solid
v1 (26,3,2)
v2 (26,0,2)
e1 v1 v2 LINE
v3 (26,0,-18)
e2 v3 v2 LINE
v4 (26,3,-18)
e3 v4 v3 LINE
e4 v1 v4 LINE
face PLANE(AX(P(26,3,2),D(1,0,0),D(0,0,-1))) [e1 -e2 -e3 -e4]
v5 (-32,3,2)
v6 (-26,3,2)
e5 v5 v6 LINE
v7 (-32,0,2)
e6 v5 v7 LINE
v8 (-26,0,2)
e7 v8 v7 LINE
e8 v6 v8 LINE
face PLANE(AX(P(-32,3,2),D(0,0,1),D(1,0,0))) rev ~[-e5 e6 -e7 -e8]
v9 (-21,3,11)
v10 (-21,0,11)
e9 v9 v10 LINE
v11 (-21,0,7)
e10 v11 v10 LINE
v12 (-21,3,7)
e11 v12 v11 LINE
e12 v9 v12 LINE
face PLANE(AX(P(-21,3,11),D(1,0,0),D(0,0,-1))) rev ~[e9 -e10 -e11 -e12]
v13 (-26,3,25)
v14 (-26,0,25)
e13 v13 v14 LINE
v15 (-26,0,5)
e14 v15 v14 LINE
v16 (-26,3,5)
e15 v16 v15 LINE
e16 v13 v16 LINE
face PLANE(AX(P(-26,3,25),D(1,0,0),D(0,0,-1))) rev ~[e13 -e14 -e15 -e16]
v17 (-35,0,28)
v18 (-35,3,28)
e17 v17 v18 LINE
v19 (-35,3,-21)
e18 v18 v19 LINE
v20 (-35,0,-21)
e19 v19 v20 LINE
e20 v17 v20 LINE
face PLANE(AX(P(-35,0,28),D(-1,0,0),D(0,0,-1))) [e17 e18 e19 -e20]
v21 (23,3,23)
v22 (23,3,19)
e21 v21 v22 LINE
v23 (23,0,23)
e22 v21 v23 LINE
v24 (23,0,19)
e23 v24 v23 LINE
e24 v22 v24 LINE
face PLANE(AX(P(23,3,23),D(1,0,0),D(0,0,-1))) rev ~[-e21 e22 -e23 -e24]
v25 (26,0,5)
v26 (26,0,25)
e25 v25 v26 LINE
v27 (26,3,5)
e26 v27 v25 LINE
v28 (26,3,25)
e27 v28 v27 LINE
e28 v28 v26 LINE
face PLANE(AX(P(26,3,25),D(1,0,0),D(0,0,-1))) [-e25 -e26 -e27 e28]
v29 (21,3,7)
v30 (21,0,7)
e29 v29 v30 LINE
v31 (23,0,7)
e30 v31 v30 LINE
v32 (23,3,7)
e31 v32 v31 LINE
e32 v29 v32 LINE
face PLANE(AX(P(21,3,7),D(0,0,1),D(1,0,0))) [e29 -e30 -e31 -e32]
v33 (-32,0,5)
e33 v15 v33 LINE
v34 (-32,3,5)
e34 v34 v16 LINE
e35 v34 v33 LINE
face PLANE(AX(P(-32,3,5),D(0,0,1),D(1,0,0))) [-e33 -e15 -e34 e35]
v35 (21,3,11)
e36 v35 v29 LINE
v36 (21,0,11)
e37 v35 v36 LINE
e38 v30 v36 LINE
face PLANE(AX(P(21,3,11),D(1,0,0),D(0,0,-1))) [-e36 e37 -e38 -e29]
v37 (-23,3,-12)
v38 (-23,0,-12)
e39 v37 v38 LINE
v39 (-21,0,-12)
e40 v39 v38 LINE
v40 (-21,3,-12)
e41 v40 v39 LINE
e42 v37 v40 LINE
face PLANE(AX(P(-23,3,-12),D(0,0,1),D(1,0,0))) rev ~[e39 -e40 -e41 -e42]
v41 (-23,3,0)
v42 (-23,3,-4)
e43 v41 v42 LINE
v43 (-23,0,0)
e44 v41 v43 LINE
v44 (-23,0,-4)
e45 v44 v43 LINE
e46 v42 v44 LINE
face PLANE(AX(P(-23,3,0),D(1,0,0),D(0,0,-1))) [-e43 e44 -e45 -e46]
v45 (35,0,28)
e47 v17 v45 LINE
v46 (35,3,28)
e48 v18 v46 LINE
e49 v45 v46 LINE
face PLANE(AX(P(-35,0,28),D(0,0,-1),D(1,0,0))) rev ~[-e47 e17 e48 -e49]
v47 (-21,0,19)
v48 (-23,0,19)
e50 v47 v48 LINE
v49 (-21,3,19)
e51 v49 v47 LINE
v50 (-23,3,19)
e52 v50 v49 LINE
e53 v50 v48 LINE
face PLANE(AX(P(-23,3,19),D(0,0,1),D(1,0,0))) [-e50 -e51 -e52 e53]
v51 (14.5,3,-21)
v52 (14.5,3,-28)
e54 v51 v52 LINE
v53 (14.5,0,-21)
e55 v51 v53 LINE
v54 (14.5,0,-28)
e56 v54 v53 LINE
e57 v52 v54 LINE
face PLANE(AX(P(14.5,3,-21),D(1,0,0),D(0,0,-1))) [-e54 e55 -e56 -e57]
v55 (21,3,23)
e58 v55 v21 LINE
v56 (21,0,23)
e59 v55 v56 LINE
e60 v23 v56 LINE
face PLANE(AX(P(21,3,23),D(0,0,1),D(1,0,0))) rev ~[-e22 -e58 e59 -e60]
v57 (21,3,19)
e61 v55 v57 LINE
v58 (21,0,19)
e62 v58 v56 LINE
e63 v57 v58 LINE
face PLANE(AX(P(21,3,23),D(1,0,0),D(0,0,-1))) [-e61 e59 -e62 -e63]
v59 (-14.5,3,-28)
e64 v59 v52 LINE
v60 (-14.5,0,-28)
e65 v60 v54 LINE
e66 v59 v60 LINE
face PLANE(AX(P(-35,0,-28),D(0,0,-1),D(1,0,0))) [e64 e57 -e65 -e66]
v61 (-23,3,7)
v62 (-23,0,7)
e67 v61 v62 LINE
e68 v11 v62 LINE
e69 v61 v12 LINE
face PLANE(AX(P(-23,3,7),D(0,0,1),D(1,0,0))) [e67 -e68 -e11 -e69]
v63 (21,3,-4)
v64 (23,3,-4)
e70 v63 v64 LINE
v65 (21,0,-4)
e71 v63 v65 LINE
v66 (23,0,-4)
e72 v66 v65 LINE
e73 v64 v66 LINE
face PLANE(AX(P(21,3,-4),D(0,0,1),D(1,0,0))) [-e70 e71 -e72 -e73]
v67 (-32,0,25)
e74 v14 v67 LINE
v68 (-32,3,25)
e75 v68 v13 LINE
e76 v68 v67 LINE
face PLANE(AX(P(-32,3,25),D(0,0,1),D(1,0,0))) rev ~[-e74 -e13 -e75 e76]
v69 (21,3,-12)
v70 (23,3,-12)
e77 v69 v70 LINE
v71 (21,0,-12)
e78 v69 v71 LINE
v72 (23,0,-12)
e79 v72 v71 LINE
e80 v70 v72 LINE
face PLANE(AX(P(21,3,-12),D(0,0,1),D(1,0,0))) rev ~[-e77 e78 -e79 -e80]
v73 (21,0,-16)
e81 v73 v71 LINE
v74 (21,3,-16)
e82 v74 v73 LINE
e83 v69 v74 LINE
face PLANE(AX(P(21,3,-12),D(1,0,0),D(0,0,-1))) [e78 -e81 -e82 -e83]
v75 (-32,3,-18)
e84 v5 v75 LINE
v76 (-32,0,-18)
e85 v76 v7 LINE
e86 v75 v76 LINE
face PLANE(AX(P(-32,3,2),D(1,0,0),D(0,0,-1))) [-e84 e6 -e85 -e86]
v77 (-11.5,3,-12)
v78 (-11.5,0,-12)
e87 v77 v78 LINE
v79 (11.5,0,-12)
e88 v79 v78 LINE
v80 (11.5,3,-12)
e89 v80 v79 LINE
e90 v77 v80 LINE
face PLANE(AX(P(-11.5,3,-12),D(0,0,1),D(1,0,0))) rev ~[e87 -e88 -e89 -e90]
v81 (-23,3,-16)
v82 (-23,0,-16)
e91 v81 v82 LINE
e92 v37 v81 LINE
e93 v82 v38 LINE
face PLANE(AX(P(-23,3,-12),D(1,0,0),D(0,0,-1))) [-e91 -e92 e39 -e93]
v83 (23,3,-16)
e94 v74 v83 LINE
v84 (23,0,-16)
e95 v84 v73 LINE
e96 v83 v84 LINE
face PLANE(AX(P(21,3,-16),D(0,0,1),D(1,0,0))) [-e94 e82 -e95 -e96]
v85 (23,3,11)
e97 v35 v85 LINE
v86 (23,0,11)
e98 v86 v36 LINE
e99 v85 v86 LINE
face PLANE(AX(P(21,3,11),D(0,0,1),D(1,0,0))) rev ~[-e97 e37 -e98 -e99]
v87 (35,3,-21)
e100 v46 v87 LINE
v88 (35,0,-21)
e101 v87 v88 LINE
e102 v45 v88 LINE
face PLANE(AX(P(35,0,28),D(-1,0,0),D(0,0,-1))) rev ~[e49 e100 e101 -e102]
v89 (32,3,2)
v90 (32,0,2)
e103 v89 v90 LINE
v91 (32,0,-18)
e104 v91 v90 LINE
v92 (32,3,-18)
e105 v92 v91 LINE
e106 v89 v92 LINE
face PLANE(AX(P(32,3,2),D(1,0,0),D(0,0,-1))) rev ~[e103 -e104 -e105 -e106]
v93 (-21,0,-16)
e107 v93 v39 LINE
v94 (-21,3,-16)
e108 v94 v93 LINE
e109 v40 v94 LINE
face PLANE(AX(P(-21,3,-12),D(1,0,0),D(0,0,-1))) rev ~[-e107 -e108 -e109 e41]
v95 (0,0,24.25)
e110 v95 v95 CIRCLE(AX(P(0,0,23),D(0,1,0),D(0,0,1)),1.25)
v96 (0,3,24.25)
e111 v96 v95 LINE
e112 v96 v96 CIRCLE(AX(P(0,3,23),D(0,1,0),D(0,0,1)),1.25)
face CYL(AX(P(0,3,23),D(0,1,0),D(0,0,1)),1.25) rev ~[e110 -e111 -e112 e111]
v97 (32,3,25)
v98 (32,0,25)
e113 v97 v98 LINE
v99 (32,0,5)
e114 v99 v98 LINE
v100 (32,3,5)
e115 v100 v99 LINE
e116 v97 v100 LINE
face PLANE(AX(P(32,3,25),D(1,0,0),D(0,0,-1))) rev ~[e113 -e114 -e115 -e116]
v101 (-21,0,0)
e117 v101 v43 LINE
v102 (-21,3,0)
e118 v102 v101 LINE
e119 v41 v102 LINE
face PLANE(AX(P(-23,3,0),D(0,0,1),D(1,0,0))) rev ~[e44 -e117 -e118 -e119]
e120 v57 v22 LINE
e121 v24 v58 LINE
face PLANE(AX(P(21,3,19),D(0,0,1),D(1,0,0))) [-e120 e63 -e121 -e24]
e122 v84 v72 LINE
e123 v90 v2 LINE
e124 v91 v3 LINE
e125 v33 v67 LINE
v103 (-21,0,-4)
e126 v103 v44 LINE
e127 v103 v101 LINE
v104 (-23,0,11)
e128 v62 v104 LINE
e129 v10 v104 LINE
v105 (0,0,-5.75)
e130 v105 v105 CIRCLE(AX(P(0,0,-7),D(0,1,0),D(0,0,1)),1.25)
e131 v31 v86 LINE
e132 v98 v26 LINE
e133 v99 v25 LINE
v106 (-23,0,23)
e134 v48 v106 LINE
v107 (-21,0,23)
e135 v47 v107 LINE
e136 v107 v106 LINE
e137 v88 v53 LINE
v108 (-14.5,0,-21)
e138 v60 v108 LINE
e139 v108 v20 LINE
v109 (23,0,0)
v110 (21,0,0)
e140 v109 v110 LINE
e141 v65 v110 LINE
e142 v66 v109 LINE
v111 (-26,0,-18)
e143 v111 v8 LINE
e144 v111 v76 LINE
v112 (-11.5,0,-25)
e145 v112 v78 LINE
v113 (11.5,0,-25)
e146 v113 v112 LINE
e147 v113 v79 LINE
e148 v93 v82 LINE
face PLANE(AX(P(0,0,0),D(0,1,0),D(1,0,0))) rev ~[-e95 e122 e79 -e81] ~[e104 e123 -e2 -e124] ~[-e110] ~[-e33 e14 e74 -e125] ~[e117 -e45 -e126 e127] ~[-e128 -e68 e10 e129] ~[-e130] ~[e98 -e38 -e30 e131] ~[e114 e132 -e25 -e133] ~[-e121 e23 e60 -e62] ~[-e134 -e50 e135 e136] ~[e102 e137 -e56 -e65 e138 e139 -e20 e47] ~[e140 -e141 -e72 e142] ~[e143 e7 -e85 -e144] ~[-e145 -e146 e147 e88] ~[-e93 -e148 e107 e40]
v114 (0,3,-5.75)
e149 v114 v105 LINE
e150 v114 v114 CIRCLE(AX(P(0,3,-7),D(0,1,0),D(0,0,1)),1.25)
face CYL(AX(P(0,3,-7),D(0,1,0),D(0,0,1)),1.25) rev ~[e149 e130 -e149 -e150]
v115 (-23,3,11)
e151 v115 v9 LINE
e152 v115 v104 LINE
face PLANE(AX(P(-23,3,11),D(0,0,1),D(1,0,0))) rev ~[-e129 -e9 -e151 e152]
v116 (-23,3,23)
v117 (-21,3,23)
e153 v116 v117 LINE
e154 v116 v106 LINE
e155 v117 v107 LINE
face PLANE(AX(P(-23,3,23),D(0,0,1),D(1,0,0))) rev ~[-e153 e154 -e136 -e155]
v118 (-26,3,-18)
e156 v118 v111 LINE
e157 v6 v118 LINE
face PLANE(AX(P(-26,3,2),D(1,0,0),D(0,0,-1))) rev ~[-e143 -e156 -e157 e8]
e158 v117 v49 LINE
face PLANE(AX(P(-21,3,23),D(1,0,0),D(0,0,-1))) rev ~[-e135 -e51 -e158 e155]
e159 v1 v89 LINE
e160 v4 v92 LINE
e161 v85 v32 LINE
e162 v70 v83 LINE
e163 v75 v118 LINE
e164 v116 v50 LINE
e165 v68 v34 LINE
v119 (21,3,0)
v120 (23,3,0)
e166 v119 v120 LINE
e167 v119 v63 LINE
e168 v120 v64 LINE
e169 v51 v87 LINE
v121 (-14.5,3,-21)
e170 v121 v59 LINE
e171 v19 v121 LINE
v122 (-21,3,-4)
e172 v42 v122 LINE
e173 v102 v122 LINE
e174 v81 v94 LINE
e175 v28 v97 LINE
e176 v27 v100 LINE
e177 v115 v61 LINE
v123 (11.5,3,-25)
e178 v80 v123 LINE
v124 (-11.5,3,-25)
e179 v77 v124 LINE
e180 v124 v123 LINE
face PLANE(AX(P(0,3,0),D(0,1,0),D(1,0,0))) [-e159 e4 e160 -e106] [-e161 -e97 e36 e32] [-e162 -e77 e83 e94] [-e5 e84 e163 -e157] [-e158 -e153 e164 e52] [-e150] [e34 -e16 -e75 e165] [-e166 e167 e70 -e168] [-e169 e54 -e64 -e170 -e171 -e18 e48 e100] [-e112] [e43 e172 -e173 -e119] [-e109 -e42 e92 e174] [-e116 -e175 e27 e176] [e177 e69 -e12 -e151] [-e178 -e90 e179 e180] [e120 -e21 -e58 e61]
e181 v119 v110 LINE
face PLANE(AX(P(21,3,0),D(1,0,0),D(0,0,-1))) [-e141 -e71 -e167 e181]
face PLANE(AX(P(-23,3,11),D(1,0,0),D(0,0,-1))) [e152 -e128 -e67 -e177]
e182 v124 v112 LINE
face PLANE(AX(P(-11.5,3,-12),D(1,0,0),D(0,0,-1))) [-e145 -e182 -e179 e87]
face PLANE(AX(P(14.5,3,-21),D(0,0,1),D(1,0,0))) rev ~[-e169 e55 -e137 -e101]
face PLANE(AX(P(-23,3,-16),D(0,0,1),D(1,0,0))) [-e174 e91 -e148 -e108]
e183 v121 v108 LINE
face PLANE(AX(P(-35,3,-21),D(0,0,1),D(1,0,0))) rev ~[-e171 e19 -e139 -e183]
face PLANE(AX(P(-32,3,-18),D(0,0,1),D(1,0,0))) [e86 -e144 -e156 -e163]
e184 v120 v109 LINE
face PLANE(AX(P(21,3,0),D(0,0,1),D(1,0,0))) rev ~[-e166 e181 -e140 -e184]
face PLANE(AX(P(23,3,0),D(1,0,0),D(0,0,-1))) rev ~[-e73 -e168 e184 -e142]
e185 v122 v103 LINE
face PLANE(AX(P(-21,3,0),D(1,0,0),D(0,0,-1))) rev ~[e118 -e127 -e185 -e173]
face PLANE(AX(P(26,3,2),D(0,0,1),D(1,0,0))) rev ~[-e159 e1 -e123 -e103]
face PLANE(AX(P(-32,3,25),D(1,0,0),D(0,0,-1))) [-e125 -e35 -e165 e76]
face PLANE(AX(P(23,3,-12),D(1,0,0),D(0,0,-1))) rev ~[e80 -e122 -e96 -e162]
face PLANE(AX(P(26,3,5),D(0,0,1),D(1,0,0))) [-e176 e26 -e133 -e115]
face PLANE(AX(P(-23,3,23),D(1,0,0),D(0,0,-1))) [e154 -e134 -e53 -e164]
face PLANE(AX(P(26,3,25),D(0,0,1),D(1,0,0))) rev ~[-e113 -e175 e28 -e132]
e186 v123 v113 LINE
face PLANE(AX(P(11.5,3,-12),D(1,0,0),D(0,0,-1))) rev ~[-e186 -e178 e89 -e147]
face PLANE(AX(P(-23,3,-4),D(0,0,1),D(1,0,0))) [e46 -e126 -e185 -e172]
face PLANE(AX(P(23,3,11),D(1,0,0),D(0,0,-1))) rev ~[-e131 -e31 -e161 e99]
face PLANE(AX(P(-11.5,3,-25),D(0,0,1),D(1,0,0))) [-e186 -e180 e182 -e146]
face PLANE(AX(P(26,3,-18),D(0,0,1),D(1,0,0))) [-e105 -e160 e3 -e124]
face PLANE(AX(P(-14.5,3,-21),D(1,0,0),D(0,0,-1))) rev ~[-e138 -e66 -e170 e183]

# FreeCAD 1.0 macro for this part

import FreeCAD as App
import Part
import Sketcher
Q = App.Units.Quantity

doc = App.newDocument("Part")
body = doc.addObject("PartDesign::Body", "Body")

sketch1 = doc.addObject("Sketcher::SketchObject", "Sketch")
body.addObject(sketch1)
sketch1.AttachmentSupport = (doc.XZ_Plane, [""])
sketch1.MapMode = "FlatFace"
sketch1.addGeometry([
    Part.LineSegment(App.Vector(-35, -28, 0), App.Vector(-35, 28, 0)),
    Part.LineSegment(App.Vector(-35, 28, 0), App.Vector(35, 28, 0)),
    Part.LineSegment(App.Vector(35, 28, 0), App.Vector(35, -28, 0)),
    Part.LineSegment(App.Vector(35, -28, 0), App.Vector(-35, -28, 0)),
], False)
sketch1.addConstraint([
    Sketcher.Constraint("Coincident", 0, 2, 1, 1),
    Sketcher.Constraint("Coincident", 1, 2, 2, 1),
    Sketcher.Constraint("Coincident", 2, 2, 3, 1),
    Sketcher.Constraint("Coincident", 3, 2, 0, 1),
    Sketcher.Constraint("Vertical", 0),
    Sketcher.Constraint("Horizontal", 1),
    Sketcher.Constraint("Vertical", 2),
    Sketcher.Constraint("Horizontal", 3),
    Sketcher.Constraint("Symmetric", 0, 2, 2, 2, -1, 1),
    Sketcher.Constraint("DistanceX", 1, 1, 1, 2, Q("70 mm")),
    Sketcher.Constraint("DistanceY", 0, 1, 0, 2, Q("56 mm")),
])
pad1 = doc.addObject("PartDesign::Pad", "Pad")
body.addObject(pad1)
pad1.Profile = sketch1
pad1.Length = 3
pad1.Reversed = True

sketch2 = doc.addObject("Sketcher::SketchObject", "Sketch001")
body.addObject(sketch2)
sketch2.AttachmentSupport = (doc.XZ_Plane, [""])
sketch2.MapMode = "FlatFace"
sketch2.AttachmentOffset = App.Placement(App.Vector(0, 0, -3), App.Rotation())
sketch2.addGeometry(Part.Circle(App.Vector(0, -7, 0), App.Vector(0, 0, 1), 1.2), False)
sketch2.addConstraint([
    Sketcher.Constraint("PointOnObject", 0, 3, -2),
    Sketcher.Constraint("Diameter", 0, Q("2.5 mm")),
    Sketcher.Constraint("DistanceY", 0, 3, -1, 1, Q("7 mm")),
])
pocket1 = doc.addObject("PartDesign::Pocket", "Pocket")
body.addObject(pocket1)
pocket1.Profile = sketch2
pocket1.Type = "UpToFirst"
pocket1.Reversed = True

sketch3 = doc.addObject("Sketcher::SketchObject", "Sketch002")
body.addObject(sketch3)
sketch3.AttachmentSupport = (doc.XZ_Plane, [""])
sketch3.MapMode = "FlatFace"
sketch3.AttachmentOffset = App.Placement(App.Vector(0, 0, -3), App.Rotation())
sketch3.addGeometry(Part.Circle(App.Vector(0, 23, 0), App.Vector(0, 0, 1), 1.2), False)
sketch3.addConstraint([
    Sketcher.Constraint("PointOnObject", 0, 3, -2),
    Sketcher.Constraint("Diameter", 0, Q("2.5 mm")),
    Sketcher.Constraint("DistanceY", -1, 1, 0, 3, Q("23 mm")),
])
pocket2 = doc.addObject("PartDesign::Pocket", "Pocket001")
body.addObject(pocket2)
pocket2.Profile = sketch3
pocket2.Type = "UpToFirst"
pocket2.Reversed = True

sketch4 = doc.addObject("Sketcher::SketchObject", "Sketch003")
body.addObject(sketch4)
sketch4.AttachmentSupport = (doc.XZ_Plane, [""])
sketch4.MapMode = "FlatFace"
sketch4.AttachmentOffset = App.Placement(App.Vector(0, 0, -3), App.Rotation())
sketch4.addGeometry([
    Part.LineSegment(App.Vector(-12, -25, 0), App.Vector(-12, -12, 0)),
    Part.LineSegment(App.Vector(-12, -12, 0), App.Vector(12, -12, 0)),
    Part.LineSegment(App.Vector(12, -12, 0), App.Vector(12, -25, 0)),
    Part.LineSegment(App.Vector(12, -25, 0), App.Vector(-12, -25, 0)),
], False)
sketch4.addConstraint([
    Sketcher.Constraint("Coincident", 0, 2, 1, 1),
    Sketcher.Constraint("Coincident", 1, 2, 2, 1),
    Sketcher.Constraint("Coincident", 2, 2, 3, 1),
    Sketcher.Constraint("Coincident", 3, 2, 0, 1),
    Sketcher.Constraint("Vertical", 0),
    Sketcher.Constraint("Horizontal", 1),
    Sketcher.Constraint("Vertical", 2),
    Sketcher.Constraint("Horizontal", 3),
    Sketcher.Constraint("DistanceX", 1, 1, 1, 2, Q("23 mm")),
    Sketcher.Constraint("DistanceY", 0, 1, 0, 2, Q("13 mm")),
    Sketcher.Constraint("DistanceY", 0, 2, -1, 1, Q("12 mm")),
    Sketcher.Constraint("DistanceX", 0, 2, -1, 1, Q("11.5 mm")),
])
pocket3 = doc.addObject("PartDesign::Pocket", "Pocket002")
body.addObject(pocket3)
pocket3.Profile = sketch4
pocket3.Type = "UpToFirst"
pocket3.Reversed = True

sketch5 = doc.addObject("Sketcher::SketchObject", "Sketch004")
body.addObject(sketch5)
sketch5.AttachmentSupport = (doc.XZ_Plane, [""])
sketch5.MapMode = "FlatFace"
sketch5.AttachmentOffset = App.Placement(App.Vector(0, 0, -3), App.Rotation())
sketch5.addGeometry([
    Part.LineSegment(App.Vector(-32, 5, 0), App.Vector(-32, 25, 0)),
    Part.LineSegment(App.Vector(-32, 25, 0), App.Vector(-26, 25, 0)),
    Part.LineSegment(App.Vector(-26, 25, 0), App.Vector(-26, 5, 0)),
    Part.LineSegment(App.Vector(-26, 5, 0), App.Vector(-32, 5, 0)),
], False)
sketch5.addConstraint([
    Sketcher.Constraint("Coincident", 0, 2, 1, 1),
    Sketcher.Constraint("Coincident", 1, 2, 2, 1),
    Sketcher.Constraint("Coincident", 2, 2, 3, 1),
    Sketcher.Constraint("Coincident", 3, 2, 0, 1),
    Sketcher.Constraint("Vertical", 0),
    Sketcher.Constraint("Horizontal", 1),
    Sketcher.Constraint("Vertical", 2),
    Sketcher.Constraint("Horizontal", 3),
    Sketcher.Constraint("DistanceX", 1, 1, 1, 2, Q("6 mm")),
    Sketcher.Constraint("DistanceY", 0, 1, 0, 2, Q("20 mm")),
    Sketcher.Constraint("DistanceX", 0, 2, -1, 1, Q("32 mm")),
    Sketcher.Constraint("DistanceY", -1, 1, 0, 2, Q("25 mm")),
])
pocket4 = doc.addObject("PartDesign::Pocket", "Pocket003")
body.addObject(pocket4)
pocket4.Profile = sketch5
pocket4.Type = "UpToFirst"
pocket4.Reversed = True

sketch6 = doc.addObject("Sketcher::SketchObject", "Sketch005")
body.addObject(sketch6)
sketch6.AttachmentSupport = (doc.XZ_Plane, [""])
sketch6.MapMode = "FlatFace"
sketch6.AttachmentOffset = App.Placement(App.Vector(0, 0, -3), App.Rotation())
sketch6.addGeometry([
    Part.LineSegment(App.Vector(-32, -18, 0), App.Vector(-32, 2, 0)),
    Part.LineSegment(App.Vector(-32, 2, 0), App.Vector(-26, 2, 0)),
    Part.LineSegment(App.Vector(-26, 2, 0), App.Vector(-26, -18, 0)),
    Part.LineSegment(App.Vector(-26, -18, 0), App.Vector(-32, -18, 0)),
], False)
sketch6.addConstraint([
    Sketcher.Constraint("Coincident", 0, 2, 1, 1),
    Sketcher.Constraint("Coincident", 1, 2, 2, 1),
    Sketcher.Constraint("Coincident", 2, 2, 3, 1),
    Sketcher.Constraint("Coincident", 3, 2, 0, 1),
    Sketcher.Constraint("Vertical", 0),
    Sketcher.Constraint("Horizontal", 1),
    Sketcher.Constraint("Vertical", 2),
    Sketcher.Constraint("Horizontal", 3),
    Sketcher.Constraint("DistanceX", 1, 1, 1, 2, Q("6 mm")),
    Sketcher.Constraint("DistanceY", 0, 1, 0, 2, Q("20 mm")),
    Sketcher.Constraint("DistanceX", 0, 2, -1, 1, Q("32 mm")),
    Sketcher.Constraint("DistanceY", -1, 1, 0, 2, Q("2 mm")),
])
pocket5 = doc.addObject("PartDesign::Pocket", "Pocket004")
body.addObject(pocket5)
pocket5.Profile = sketch6
pocket5.Type = "UpToFirst"
pocket5.Reversed = True

sketch7 = doc.addObject("Sketcher::SketchObject", "Sketch006")
body.addObject(sketch7)
sketch7.AttachmentSupport = (doc.XZ_Plane, [""])
sketch7.MapMode = "FlatFace"
sketch7.AttachmentOffset = App.Placement(App.Vector(0, 0, -3), App.Rotation())
sketch7.addGeometry([
    Part.LineSegment(App.Vector(26, 5, 0), App.Vector(26, 25, 0)),
    Part.LineSegment(App.Vector(26, 25, 0), App.Vector(32, 25, 0)),
    Part.LineSegment(App.Vector(32, 25, 0), App.Vector(32, 5, 0)),
    Part.LineSegment(App.Vector(32, 5, 0), App.Vector(26, 5, 0)),
], False)
sketch7.addConstraint([
    Sketcher.Constraint("Coincident", 0, 2, 1, 1),
    Sketcher.Constraint("Coincident", 1, 2, 2, 1),
    Sketcher.Constraint("Coincident", 2, 2, 3, 1),
    Sketcher.Constraint("Coincident", 3, 2, 0, 1),
    Sketcher.Constraint("Vertical", 0),
    Sketcher.Constraint("Horizontal", 1),
    Sketcher.Constraint("Vertical", 2),
    Sketcher.Constraint("Horizontal", 3),
    Sketcher.Constraint("DistanceX", 1, 1, 1, 2, Q("6 mm")),
    Sketcher.Constraint("DistanceY", 0, 1, 0, 2, Q("20 mm")),
    Sketcher.Constraint("DistanceX", -1, 1, 0, 2, Q("26 mm")),
    Sketcher.Constraint("DistanceY", -1, 1, 0, 2, Q("25 mm")),
])
pocket6 = doc.addObject("PartDesign::Pocket", "Pocket005")
body.addObject(pocket6)
pocket6.Profile = sketch7
pocket6.Type = "UpToFirst"
pocket6.Reversed = True

sketch8 = doc.addObject("Sketcher::SketchObject", "Sketch007")
body.addObject(sketch8)
sketch8.AttachmentSupport = (doc.XZ_Plane, [""])
sketch8.MapMode = "FlatFace"
sketch8.AttachmentOffset = App.Placement(App.Vector(0, 0, -3), App.Rotation())
sketch8.addGeometry([
    Part.LineSegment(App.Vector(26, -18, 0), App.Vector(26, 2, 0)),
    Part.LineSegment(App.Vector(26, 2, 0), App.Vector(32, 2, 0)),
    Part.LineSegment(App.Vector(32, 2, 0), App.Vector(32, -18, 0)),
    Part.LineSegment(App.Vector(32, -18, 0), App.Vector(26, -18, 0)),
], False)
sketch8.addConstraint([
    Sketcher.Constraint("Coincident", 0, 2, 1, 1),
    Sketcher.Constraint("Coincident", 1, 2, 2, 1),
    Sketcher.Constraint("Coincident", 2, 2, 3, 1),
    Sketcher.Constraint("Coincident", 3, 2, 0, 1),
    Sketcher.Constraint("Vertical", 0),
    Sketcher.Constraint("Horizontal", 1),
    Sketcher.Constraint("Vertical", 2),
    Sketcher.Constraint("Horizontal", 3),
    Sketcher.Constraint("DistanceX", 1, 1, 1, 2, Q("6 mm")),
    Sketcher.Constraint("DistanceY", 0, 1, 0, 2, Q("20 mm")),
    Sketcher.Constraint("DistanceX", -1, 1, 0, 2, Q("26 mm")),
    Sketcher.Constraint("DistanceY", -1, 1, 0, 2, Q("2 mm")),
])
pocket7 = doc.addObject("PartDesign::Pocket", "Pocket006")
body.addObject(pocket7)
pocket7.Profile = sketch8
pocket7.Type = "UpToFirst"
pocket7.Reversed = True

sketch9 = doc.addObject("Sketcher::SketchObject", "Sketch008")
body.addObject(sketch9)
sketch9.AttachmentSupport = (doc.XZ_Plane, [""])
sketch9.MapMode = "FlatFace"
sketch9.AttachmentOffset = App.Placement(App.Vector(0, 0, -3), App.Rotation())
sketch9.addGeometry([
    Part.LineSegment(App.Vector(-23, -4, 0), App.Vector(-23, 0, 0)),
    Part.LineSegment(App.Vector(-23, 0, 0), App.Vector(-21, 0, 0)),
    Part.LineSegment(App.Vector(-21, 0, 0), App.Vector(-21, -4, 0)),
    Part.LineSegment(App.Vector(-21, -4, 0), App.Vector(-23, -4, 0)),
], False)
sketch9.addConstraint([
    Sketcher.Constraint("Coincident", 0, 2, 1, 1),
    Sketcher.Constraint("Coincident", 1, 2, 2, 1),
    Sketcher.Constraint("Coincident", 2, 2, 3, 1),
    Sketcher.Constraint("Coincident", 3, 2, 0, 1),
    Sketcher.Constraint("Vertical", 0),
    Sketcher.Constraint("Horizontal", 1),
    Sketcher.Constraint("Vertical", 2),
    Sketcher.Constraint("Horizontal", 3),
    Sketcher.Constraint("PointOnObject", 0, 2, -1),
    Sketcher.Constraint("DistanceX", 1, 1, 1, 2, Q("2 mm")),
    Sketcher.Constraint("DistanceY", 0, 1, 0, 2, Q("4 mm")),
    Sketcher.Constraint("DistanceX", 0, 2, -1, 1, Q("23 mm")),
])
pocket8 = doc.addObject("PartDesign::Pocket", "Pocket007")
body.addObject(pocket8)
pocket8.Profile = sketch9
pocket8.Type = "UpToFirst"
pocket8.Reversed = True

sketch10 = doc.addObject("Sketcher::SketchObject", "Sketch009")
body.addObject(sketch10)
sketch10.AttachmentSupport = (doc.XZ_Plane, [""])
sketch10.MapMode = "FlatFace"
sketch10.AttachmentOffset = App.Placement(App.Vector(0, 0, -3), App.Rotation())
sketch10.addGeometry([
    Part.LineSegment(App.Vector(-23, -16, 0), App.Vector(-23, -12, 0)),
    Part.LineSegment(App.Vector(-23, -12, 0), App.Vector(-21, -12, 0)),
    Part.LineSegment(App.Vector(-21, -12, 0), App.Vector(-21, -16, 0)),
    Part.LineSegment(App.Vector(-21, -16, 0), App.Vector(-23, -16, 0)),
], False)
sketch10.addConstraint([
    Sketcher.Constraint("Coincident", 0, 2, 1, 1),
    Sketcher.Constraint("Coincident", 1, 2, 2, 1),
    Sketcher.Constraint("Coincident", 2, 2, 3, 1),
    Sketcher.Constraint("Coincident", 3, 2, 0, 1),
    Sketcher.Constraint("Vertical", 0),
    Sketcher.Constraint("Horizontal", 1),
    Sketcher.Constraint("Vertical", 2),
    Sketcher.Constraint("Horizontal", 3),
    Sketcher.Constraint("DistanceX", 1, 1, 1, 2, Q("2 mm")),
    Sketcher.Constraint("DistanceY", 0, 1, 0, 2, Q("4 mm")),
    Sketcher.Constraint("DistanceX", 0, 2, -1, 1, Q("23 mm")),
    Sketcher.Constraint("DistanceY", 0, 2, -1, 1, Q("12 mm")),
])
pocket9 = doc.addObject("PartDesign::Pocket", "Pocket008")
body.addObject(pocket9)
pocket9.Profile = sketch10
pocket9.Type = "UpToFirst"
pocket9.Reversed = True

sketch11 = doc.addObject("Sketcher::SketchObject", "Sketch010")
body.addObject(sketch11)
sketch11.AttachmentSupport = (doc.XZ_Plane, [""])
sketch11.MapMode = "FlatFace"
sketch11.AttachmentOffset = App.Placement(App.Vector(0, 0, -3), App.Rotation())
sketch11.addGeometry([
    Part.LineSegment(App.Vector(21, -4, 0), App.Vector(21, 0, 0)),
    Part.LineSegment(App.Vector(21, 0, 0), App.Vector(23, 0, 0)),
    Part.LineSegment(App.Vector(23, 0, 0), App.Vector(23, -4, 0)),
    Part.LineSegment(App.Vector(23, -4, 0), App.Vector(21, -4, 0)),
], False)
sketch11.addConstraint([
    Sketcher.Constraint("Coincident", 0, 2, 1, 1),
    Sketcher.Constraint("Coincident", 1, 2, 2, 1),
    Sketcher.Constraint("Coincident", 2, 2, 3, 1),
    Sketcher.Constraint("Coincident", 3, 2, 0, 1),
    Sketcher.Constraint("Vertical", 0),
    Sketcher.Constraint("Horizontal", 1),
    Sketcher.Constraint("Vertical", 2),
    Sketcher.Constraint("Horizontal", 3),
    Sketcher.Constraint("PointOnObject", 0, 2, -1),
    Sketcher.Constraint("DistanceX", 1, 1, 1, 2, Q("2 mm")),
    Sketcher.Constraint("DistanceY", 0, 1, 0, 2, Q("4 mm")),
    Sketcher.Constraint("DistanceX", -1, 1, 0, 2, Q("21 mm")),
])
pocket10 = doc.addObject("PartDesign::Pocket", "Pocket009")
body.addObject(pocket10)
pocket10.Profile = sketch11
pocket10.Type = "UpToFirst"
pocket10.Reversed = True

sketch12 = doc.addObject("Sketcher::SketchObject", "Sketch011")
body.addObject(sketch12)
sketch12.AttachmentSupport = (doc.XZ_Plane, [""])
sketch12.MapMode = "FlatFace"
sketch12.AttachmentOffset = App.Placement(App.Vector(0, 0, -3), App.Rotation())
sketch12.addGeometry([
    Part.LineSegment(App.Vector(21, -16, 0), App.Vector(21, -12, 0)),
    Part.LineSegment(App.Vector(21, -12, 0), App.Vector(23, -12, 0)),
    Part.LineSegment(App.Vector(23, -12, 0), App.Vector(23, -16, 0)),
    Part.LineSegment(App.Vector(23, -16, 0), App.Vector(21, -16, 0)),
], False)
sketch12.addConstraint([
    Sketcher.Constraint("Coincident", 0, 2, 1, 1),
    Sketcher.Constraint("Coincident", 1, 2, 2, 1),
    Sketcher.Constraint("Coincident", 2, 2, 3, 1),
    Sketcher.Constraint("Coincident", 3, 2, 0, 1),
    Sketcher.Constraint("Vertical", 0),
    Sketcher.Constraint("Horizontal", 1),
    Sketcher.Constraint("Vertical", 2),
    Sketcher.Constraint("Horizontal", 3),
    Sketcher.Constraint("DistanceX", 1, 1, 1, 2, Q("2 mm")),
    Sketcher.Constraint("DistanceY", 0, 1, 0, 2, Q("4 mm")),
    Sketcher.Constraint("DistanceX", -1, 1, 0, 2, Q("21 mm")),
    Sketcher.Constraint("DistanceY", 0, 2, -1, 1, Q("12 mm")),
])
pocket11 = doc.addObject("PartDesign::Pocket", "Pocket010")
body.addObject(pocket11)
pocket11.Profile = sketch12
pocket11.Type = "UpToFirst"
pocket11.Reversed = True

sketch13 = doc.addObject("Sketcher::SketchObject", "Sketch012")
body.addObject(sketch13)
sketch13.AttachmentSupport = (doc.XZ_Plane, [""])
sketch13.MapMode = "FlatFace"
sketch13.AttachmentOffset = App.Placement(App.Vector(0, 0, -3), App.Rotation())
sketch13.addGeometry([
    Part.LineSegment(App.Vector(14, -28, 0), App.Vector(14, -21, 0)),
    Part.LineSegment(App.Vector(14, -21, 0), App.Vector(35, -21, 0)),
    Part.LineSegment(App.Vector(35, -21, 0), App.Vector(35, -28, 0)),
    Part.LineSegment(App.Vector(35, -28, 0), App.Vector(14, -28, 0)),
], False)
sketch13.addConstraint([
    Sketcher.Constraint("Coincident", 0, 2, 1, 1),
    Sketcher.Constraint("Coincident", 1, 2, 2, 1),
    Sketcher.Constraint("Coincident", 2, 2, 3, 1),
    Sketcher.Constraint("Coincident", 3, 2, 0, 1),
    Sketcher.Constraint("Vertical", 0),
    Sketcher.Constraint("Horizontal", 1),
    Sketcher.Constraint("Vertical", 2),
    Sketcher.Constraint("Horizontal", 3),
    Sketcher.Constraint("DistanceY", 0, 1, 0, 2, Q("7 mm")),
    Sketcher.Constraint("DistanceX", 1, 1, 1, 2, Q("20.5 mm")),
    Sketcher.Constraint("DistanceY", 0, 2, -1, 1, Q("21 mm")),
    Sketcher.Constraint("DistanceX", -1, 1, 1, 2, Q("35 mm")),
])
pocket12 = doc.addObject("PartDesign::Pocket", "Pocket011")
body.addObject(pocket12)
pocket12.Profile = sketch13
pocket12.Type = "UpToFirst"
pocket12.Reversed = True

sketch14 = doc.addObject("Sketcher::SketchObject", "Sketch013")
body.addObject(sketch14)
sketch14.AttachmentSupport = (doc.XZ_Plane, [""])
sketch14.MapMode = "FlatFace"
sketch14.AttachmentOffset = App.Placement(App.Vector(0, 0, -3), App.Rotation())
sketch14.addGeometry([
    Part.LineSegment(App.Vector(-35, -28, 0), App.Vector(-35, -21, 0)),
    Part.LineSegment(App.Vector(-35, -21, 0), App.Vector(-14, -21, 0)),
    Part.LineSegment(App.Vector(-14, -21, 0), App.Vector(-14, -28, 0)),
    Part.LineSegment(App.Vector(-14, -28, 0), App.Vector(-35, -28, 0)),
], False)
sketch14.addConstraint([
    Sketcher.Constraint("Coincident", 0, 2, 1, 1),
    Sketcher.Constraint("Coincident", 1, 2, 2, 1),
    Sketcher.Constraint("Coincident", 2, 2, 3, 1),
    Sketcher.Constraint("Coincident", 3, 2, 0, 1),
    Sketcher.Constraint("Vertical", 0),
    Sketcher.Constraint("Horizontal", 1),
    Sketcher.Constraint("Vertical", 2),
    Sketcher.Constraint("Horizontal", 3),
    Sketcher.Constraint("DistanceY", 0, 1, 0, 2, Q("7 mm")),
    Sketcher.Constraint("DistanceX", 1, 1, 1, 2, Q("20.5 mm")),
    Sketcher.Constraint("DistanceX", 0, 2, -1, 1, Q("35 mm")),
    Sketcher.Constraint("DistanceY", 0, 2, -1, 1, Q("21 mm")),
])
pocket13 = doc.addObject("PartDesign::Pocket", "Pocket012")
body.addObject(pocket13)
pocket13.Profile = sketch14
pocket13.Type = "UpToFirst"
pocket13.Reversed = True

sketch15 = doc.addObject("Sketcher::SketchObject", "Sketch014")
body.addObject(sketch15)
sketch15.AttachmentSupport = (doc.XZ_Plane, [""])
sketch15.MapMode = "FlatFace"
sketch15.AttachmentOffset = App.Placement(App.Vector(0, 0, -3), App.Rotation())
sketch15.addGeometry([
    Part.LineSegment(App.Vector(-23, 7, 0), App.Vector(-23, 11, 0)),
    Part.LineSegment(App.Vector(-23, 11, 0), App.Vector(-21, 11, 0)),
    Part.LineSegment(App.Vector(-21, 11, 0), App.Vector(-21, 7, 0)),
    Part.LineSegment(App.Vector(-21, 7, 0), App.Vector(-23, 7, 0)),
], False)
sketch15.addConstraint([
    Sketcher.Constraint("Coincident", 0, 2, 1, 1),
    Sketcher.Constraint("Coincident", 1, 2, 2, 1),
    Sketcher.Constraint("Coincident", 2, 2, 3, 1),
    Sketcher.Constraint("Coincident", 3, 2, 0, 1),
    Sketcher.Constraint("Vertical", 0),
    Sketcher.Constraint("Horizontal", 1),
    Sketcher.Constraint("Vertical", 2),
    Sketcher.Constraint("Horizontal", 3),
    Sketcher.Constraint("DistanceX", 1, 1, 1, 2, Q("2 mm")),
    Sketcher.Constraint("DistanceY", 0, 1, 0, 2, Q("4 mm")),
    Sketcher.Constraint("DistanceX", 0, 2, -1, 1, Q("23 mm")),
    Sketcher.Constraint("DistanceY", -1, 1, 0, 2, Q("11 mm")),
])
pocket14 = doc.addObject("PartDesign::Pocket", "Pocket013")
body.addObject(pocket14)
pocket14.Profile = sketch15
pocket14.Type = "UpToFirst"
pocket14.Reversed = True

sketch16 = doc.addObject("Sketcher::SketchObject", "Sketch015")
body.addObject(sketch16)
sketch16.AttachmentSupport = (doc.XZ_Plane, [""])
sketch16.MapMode = "FlatFace"
sketch16.AttachmentOffset = App.Placement(App.Vector(0, 0, -3), App.Rotation())
sketch16.addGeometry([
    Part.LineSegment(App.Vector(-23, 19, 0), App.Vector(-23, 23, 0)),
    Part.LineSegment(App.Vector(-23, 23, 0), App.Vector(-21, 23, 0)),
    Part.LineSegment(App.Vector(-21, 23, 0), App.Vector(-21, 19, 0)),
    Part.LineSegment(App.Vector(-21, 19, 0), App.Vector(-23, 19, 0)),
], False)
sketch16.addConstraint([
    Sketcher.Constraint("Coincident", 0, 2, 1, 1),
    Sketcher.Constraint("Coincident", 1, 2, 2, 1),
    Sketcher.Constraint("Coincident", 2, 2, 3, 1),
    Sketcher.Constraint("Coincident", 3, 2, 0, 1),
    Sketcher.Constraint("Vertical", 0),
    Sketcher.Constraint("Horizontal", 1),
    Sketcher.Constraint("Vertical", 2),
    Sketcher.Constraint("Horizontal", 3),
    Sketcher.Constraint("DistanceX", 1, 1, 1, 2, Q("2 mm")),
    Sketcher.Constraint("DistanceY", 0, 1, 0, 2, Q("4 mm")),
    Sketcher.Constraint("DistanceX", 0, 2, -1, 1, Q("23 mm")),
    Sketcher.Constraint("DistanceY", -1, 1, 0, 2, Q("23 mm")),
])
pocket15 = doc.addObject("PartDesign::Pocket", "Pocket014")
body.addObject(pocket15)
pocket15.Profile = sketch16
pocket15.Type = "UpToFirst"
pocket15.Reversed = True

sketch17 = doc.addObject("Sketcher::SketchObject", "Sketch016")
body.addObject(sketch17)
sketch17.AttachmentSupport = (doc.XZ_Plane, [""])
sketch17.MapMode = "FlatFace"
sketch17.AttachmentOffset = App.Placement(App.Vector(0, 0, -3), App.Rotation())
sketch17.addGeometry([
    Part.LineSegment(App.Vector(21, 19, 0), App.Vector(21, 23, 0)),
    Part.LineSegment(App.Vector(21, 23, 0), App.Vector(23, 23, 0)),
    Part.LineSegment(App.Vector(23, 23, 0), App.Vector(23, 19, 0)),
    Part.LineSegment(App.Vector(23, 19, 0), App.Vector(21, 19, 0)),
], False)
sketch17.addConstraint([
    Sketcher.Constraint("Coincident", 0, 2, 1, 1),
    Sketcher.Constraint("Coincident", 1, 2, 2, 1),
    Sketcher.Constraint("Coincident", 2, 2, 3, 1),
    Sketcher.Constraint("Coincident", 3, 2, 0, 1),
    Sketcher.Constraint("Vertical", 0),
    Sketcher.Constraint("Horizontal", 1),
    Sketcher.Constraint("Vertical", 2),
    Sketcher.Constraint("Horizontal", 3),
    Sketcher.Constraint("DistanceX", 1, 1, 1, 2, Q("2 mm")),
    Sketcher.Constraint("DistanceY", 0, 1, 0, 2, Q("4 mm")),
    Sketcher.Constraint("DistanceX", -1, 1, 0, 2, Q("21 mm")),
    Sketcher.Constraint("DistanceY", -1, 1, 0, 2, Q("23 mm")),
])
pocket16 = doc.addObject("PartDesign::Pocket", "Pocket015")
body.addObject(pocket16)
pocket16.Profile = sketch17
pocket16.Type = "UpToFirst"
pocket16.Reversed = True

sketch18 = doc.addObject("Sketcher::SketchObject", "Sketch017")
body.addObject(sketch18)
sketch18.AttachmentSupport = (doc.XZ_Plane, [""])
sketch18.MapMode = "FlatFace"
sketch18.AttachmentOffset = App.Placement(App.Vector(0, 0, -3), App.Rotation())
sketch18.addGeometry([
    Part.LineSegment(App.Vector(21, 7, 0), App.Vector(21, 11, 0)),
    Part.LineSegment(App.Vector(21, 11, 0), App.Vector(23, 11, 0)),
    Part.LineSegment(App.Vector(23, 11, 0), App.Vector(23, 7, 0)),
    Part.LineSegment(App.Vector(23, 7, 0), App.Vector(21, 7, 0)),
], False)
sketch18.addConstraint([
    Sketcher.Constraint("Coincident", 0, 2, 1, 1),
    Sketcher.Constraint("Coincident", 1, 2, 2, 1),
    Sketcher.Constraint("Coincident", 2, 2, 3, 1),
    Sketcher.Constraint("Coincident", 3, 2, 0, 1),
    Sketcher.Constraint("Vertical", 0),
    Sketcher.Constraint("Horizontal", 1),
    Sketcher.Constraint("Vertical", 2),
    Sketcher.Constraint("Horizontal", 3),
    Sketcher.Constraint("DistanceX", 1, 1, 1, 2, Q("2 mm")),
    Sketcher.Constraint("DistanceY", 0, 1, 0, 2, Q("4 mm")),
    Sketcher.Constraint("DistanceX", -1, 1, 0, 2, Q("21 mm")),
    Sketcher.Constraint("DistanceY", -1, 1, 0, 2, Q("11 mm")),
])
pocket17 = doc.addObject("PartDesign::Pocket", "Pocket016")
body.addObject(pocket17)
pocket17.Profile = sketch18
pocket17.Type = "UpToFirst"
pocket17.Reversed = True

doc.recompute()
